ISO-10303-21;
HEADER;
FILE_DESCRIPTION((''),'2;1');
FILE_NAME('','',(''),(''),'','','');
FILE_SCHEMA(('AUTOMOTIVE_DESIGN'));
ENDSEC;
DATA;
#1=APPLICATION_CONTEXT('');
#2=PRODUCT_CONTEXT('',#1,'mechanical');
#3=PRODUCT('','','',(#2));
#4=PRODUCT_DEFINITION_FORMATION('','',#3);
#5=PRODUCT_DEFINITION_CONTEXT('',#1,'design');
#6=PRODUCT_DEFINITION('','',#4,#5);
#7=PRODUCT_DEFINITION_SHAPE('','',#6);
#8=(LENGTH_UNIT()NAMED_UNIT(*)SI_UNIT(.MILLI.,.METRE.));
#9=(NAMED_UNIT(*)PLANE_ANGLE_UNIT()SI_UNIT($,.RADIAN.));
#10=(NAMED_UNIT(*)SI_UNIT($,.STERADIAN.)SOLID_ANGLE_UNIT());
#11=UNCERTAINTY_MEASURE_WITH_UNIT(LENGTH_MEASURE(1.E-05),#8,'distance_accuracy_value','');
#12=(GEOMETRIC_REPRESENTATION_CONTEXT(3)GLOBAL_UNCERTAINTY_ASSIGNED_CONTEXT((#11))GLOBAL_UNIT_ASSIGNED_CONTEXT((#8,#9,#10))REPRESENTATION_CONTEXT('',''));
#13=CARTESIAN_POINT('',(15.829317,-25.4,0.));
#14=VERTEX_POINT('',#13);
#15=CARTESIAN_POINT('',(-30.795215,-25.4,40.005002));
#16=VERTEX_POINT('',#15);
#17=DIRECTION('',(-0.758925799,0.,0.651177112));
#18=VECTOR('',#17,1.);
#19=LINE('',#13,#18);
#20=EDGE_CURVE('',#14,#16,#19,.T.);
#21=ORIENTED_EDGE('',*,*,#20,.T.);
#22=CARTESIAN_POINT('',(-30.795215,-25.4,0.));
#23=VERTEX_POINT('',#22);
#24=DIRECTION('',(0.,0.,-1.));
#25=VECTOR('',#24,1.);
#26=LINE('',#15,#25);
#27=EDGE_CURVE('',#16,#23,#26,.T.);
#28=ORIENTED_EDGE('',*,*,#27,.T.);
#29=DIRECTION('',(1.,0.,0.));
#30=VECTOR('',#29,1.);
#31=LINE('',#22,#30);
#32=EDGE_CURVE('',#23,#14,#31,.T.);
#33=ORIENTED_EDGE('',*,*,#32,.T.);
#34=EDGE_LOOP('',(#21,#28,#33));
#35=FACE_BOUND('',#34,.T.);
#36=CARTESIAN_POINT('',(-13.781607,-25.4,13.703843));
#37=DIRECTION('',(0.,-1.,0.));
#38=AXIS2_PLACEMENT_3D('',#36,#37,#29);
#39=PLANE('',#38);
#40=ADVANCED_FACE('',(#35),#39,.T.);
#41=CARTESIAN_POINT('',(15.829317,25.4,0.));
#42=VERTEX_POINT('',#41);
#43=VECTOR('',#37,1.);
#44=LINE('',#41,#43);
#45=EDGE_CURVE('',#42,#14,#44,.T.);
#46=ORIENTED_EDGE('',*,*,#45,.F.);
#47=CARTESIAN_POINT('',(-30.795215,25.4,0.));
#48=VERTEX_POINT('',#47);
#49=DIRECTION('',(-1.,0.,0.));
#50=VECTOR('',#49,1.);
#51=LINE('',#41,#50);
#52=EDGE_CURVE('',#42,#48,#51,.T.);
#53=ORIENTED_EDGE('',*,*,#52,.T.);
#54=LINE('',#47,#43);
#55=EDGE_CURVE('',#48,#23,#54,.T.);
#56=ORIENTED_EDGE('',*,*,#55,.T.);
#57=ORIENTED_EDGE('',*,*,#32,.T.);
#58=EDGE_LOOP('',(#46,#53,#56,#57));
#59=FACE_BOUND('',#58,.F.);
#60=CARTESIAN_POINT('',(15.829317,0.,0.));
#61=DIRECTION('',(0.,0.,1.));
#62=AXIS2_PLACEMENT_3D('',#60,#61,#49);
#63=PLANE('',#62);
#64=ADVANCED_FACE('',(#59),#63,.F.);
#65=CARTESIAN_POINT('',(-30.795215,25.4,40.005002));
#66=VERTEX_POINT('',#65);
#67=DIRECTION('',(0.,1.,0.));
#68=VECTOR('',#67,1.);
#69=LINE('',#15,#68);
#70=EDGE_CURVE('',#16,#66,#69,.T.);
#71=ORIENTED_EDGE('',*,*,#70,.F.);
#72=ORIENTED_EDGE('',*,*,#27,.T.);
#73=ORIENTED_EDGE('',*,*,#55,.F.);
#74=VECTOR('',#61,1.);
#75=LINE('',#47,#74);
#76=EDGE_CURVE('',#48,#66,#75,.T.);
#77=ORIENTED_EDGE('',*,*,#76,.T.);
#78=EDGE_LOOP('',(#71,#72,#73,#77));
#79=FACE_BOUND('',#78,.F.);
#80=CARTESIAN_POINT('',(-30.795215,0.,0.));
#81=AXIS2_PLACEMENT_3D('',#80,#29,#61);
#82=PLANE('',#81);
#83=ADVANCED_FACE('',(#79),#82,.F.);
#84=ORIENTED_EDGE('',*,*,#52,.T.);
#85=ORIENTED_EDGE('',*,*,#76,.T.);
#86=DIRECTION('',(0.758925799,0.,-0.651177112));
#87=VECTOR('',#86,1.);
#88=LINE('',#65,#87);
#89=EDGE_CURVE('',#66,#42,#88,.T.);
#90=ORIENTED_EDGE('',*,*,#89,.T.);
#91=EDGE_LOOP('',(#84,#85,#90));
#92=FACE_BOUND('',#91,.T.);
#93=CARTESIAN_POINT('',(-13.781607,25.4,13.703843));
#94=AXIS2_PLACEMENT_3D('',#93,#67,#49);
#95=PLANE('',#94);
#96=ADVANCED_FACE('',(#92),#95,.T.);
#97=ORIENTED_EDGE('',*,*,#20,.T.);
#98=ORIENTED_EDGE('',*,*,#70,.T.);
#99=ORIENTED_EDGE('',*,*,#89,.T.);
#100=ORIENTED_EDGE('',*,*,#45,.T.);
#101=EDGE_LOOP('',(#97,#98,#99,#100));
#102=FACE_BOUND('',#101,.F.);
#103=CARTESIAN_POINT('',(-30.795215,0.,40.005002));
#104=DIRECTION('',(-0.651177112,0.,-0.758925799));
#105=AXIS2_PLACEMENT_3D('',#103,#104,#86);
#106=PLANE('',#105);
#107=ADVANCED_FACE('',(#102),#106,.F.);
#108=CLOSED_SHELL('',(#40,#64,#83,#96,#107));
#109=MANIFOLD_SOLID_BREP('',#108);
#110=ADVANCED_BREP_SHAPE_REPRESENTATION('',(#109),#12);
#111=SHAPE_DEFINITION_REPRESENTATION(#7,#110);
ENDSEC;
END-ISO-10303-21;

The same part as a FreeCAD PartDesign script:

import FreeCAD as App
import Part
import Sketcher

V = App.Vector
Q = App.Units.Quantity


def add_polygon(sketch, points):
    """Adds a closed chain of lines whose ends are joined by coincident constraints."""
    first, n = sketch.GeometryCount, len(points)
    for a, b in zip(points, points[1:] + points[:1]):
        sketch.addGeometry(Part.LineSegment(App.Vector(*a, 0), App.Vector(*b, 0)), False)
    for i in range(n):
        sketch.addConstraint(Sketcher.Constraint("Coincident", first + i, 2, first + (i + 1) % n, 1))

doc = App.newDocument("Part")
body = doc.addObject("PartDesign::Body", "Body")

sketch1 = doc.addObject("Sketcher::SketchObject", "Sketch")
body.addObject(sketch1)
sketch1.AttachmentSupport = (doc.XZ_Plane, [""])
sketch1.MapMode = "FlatFace"
add_polygon(sketch1, [(16, 0), (-31, 40), (-31, 0)])
sketch1.addConstraint([
    Sketcher.Constraint("Vertical", 1),
    Sketcher.Constraint("Horizontal", 2),
    Sketcher.Constraint("PointOnObject", 1, 2, -1),
    Sketcher.Constraint("DistanceY", 1, 2, 1, 1, Q("1.5750001 in")),
    Sketcher.Constraint("Distance", 0, 61.434902),
    Sketcher.Constraint("DistanceX", 0, 2, -1, 1, 30.795215),
])
pad1 = doc.addObject("PartDesign::Pad", "Pad")
body.addObject(pad1)
pad1.Profile = sketch1
pad1.Length = Q("1 in")

sketch2 = doc.addObject("Sketcher::SketchObject", "Sketch001")
body.addObject(sketch2)
sketch2.AttachmentSupport = (doc.XZ_Plane, [""])
sketch2.MapMode = "FlatFace"
add_polygon(sketch2, [(-31, 0), (-31, 40), (16, 0)])
sketch2.addConstraint([
    Sketcher.Constraint("Vertical", 0),
    Sketcher.Constraint("Horizontal", 2),
    Sketcher.Constraint("PointOnObject", 1, 2, -1),
    Sketcher.Constraint("DistanceY", 0, 1, 0, 2, Q("1.5750001 in")),
    Sketcher.Constraint("Distance", 1, 61.434902),
    Sketcher.Constraint("DistanceX", 0, 2, -1, 1, 30.795215),
])
pad2 = doc.addObject("PartDesign::Pad", "Pad001")
body.addObject(pad2)
pad2.Profile = sketch2
pad2.Length = Q("1 in")
pad2.Reversed = True

doc.recompute()
